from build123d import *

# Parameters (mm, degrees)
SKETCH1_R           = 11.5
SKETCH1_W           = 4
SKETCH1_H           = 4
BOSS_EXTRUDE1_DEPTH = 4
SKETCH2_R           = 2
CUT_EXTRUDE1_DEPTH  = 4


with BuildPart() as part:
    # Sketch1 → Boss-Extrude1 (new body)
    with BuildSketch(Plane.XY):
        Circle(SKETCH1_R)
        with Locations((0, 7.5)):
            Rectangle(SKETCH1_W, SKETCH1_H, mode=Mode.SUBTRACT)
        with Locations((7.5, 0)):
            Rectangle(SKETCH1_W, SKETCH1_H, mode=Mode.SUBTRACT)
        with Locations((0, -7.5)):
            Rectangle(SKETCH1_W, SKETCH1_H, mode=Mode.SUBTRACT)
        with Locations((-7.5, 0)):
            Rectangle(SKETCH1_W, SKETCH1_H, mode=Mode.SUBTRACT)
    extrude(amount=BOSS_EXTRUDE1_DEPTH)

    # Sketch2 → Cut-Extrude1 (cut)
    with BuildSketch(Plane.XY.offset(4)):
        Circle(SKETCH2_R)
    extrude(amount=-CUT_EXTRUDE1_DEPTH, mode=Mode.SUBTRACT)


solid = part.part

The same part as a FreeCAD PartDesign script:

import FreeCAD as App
import Part
import Sketcher
from FreeCAD import Vector
Q = App.Units.Quantity


def add_polygon(sketch, points):
    """Adds a closed chain of lines whose ends are joined by coincident constraints."""
    first, n = sketch.GeometryCount, len(points)
    for a, b in zip(points, points[1:] + points[:1]):
        sketch.addGeometry(Part.LineSegment(App.Vector(*a, 0), App.Vector(*b, 0)), False)
    for i in range(n):
        sketch.addConstraint(Sketcher.Constraint("Coincident", first + i, 2, first + (i + 1) % n, 1))

doc = App.newDocument("Part")
body = doc.addObject("PartDesign::Body", "Body")

# Sketch on XY plane
sketch1 = body.newObject("Sketcher::SketchObject", "Sketch")
sketch1.AttachmentSupport = (doc.getObject("XY_Plane"), [""])
sketch1.MapMode = "FlatFace"
sketch1.addGeometry(Part.Circle(Vector(0, 0, 0), Vector(0, 0, 1), 11.5), False)  # 0
add_polygon(sketch1, [(2, -9.5), (-2, -9.5), (-2, -5.5), (2, -5.5)])  # lines 1-4
add_polygon(sketch1, [(-5.5, -2), (-9.5, -2), (-9.5, 2), (-5.5, 2)])  # lines 5-8
add_polygon(sketch1, [(9.5, -2), (5.5, -2), (5.5, 2), (9.5, 2)])  # lines 9-12
add_polygon(sketch1, [(2, 5.5), (-2, 5.5), (-2, 9.5), (2, 9.5)])  # lines 13-16
sketch1.addConstraint(Sketcher.Constraint("Horizontal", 1))
sketch1.addConstraint(Sketcher.Constraint("Vertical", 2))
sketch1.addConstraint(Sketcher.Constraint("Horizontal", 3))
sketch1.addConstraint(Sketcher.Constraint("Vertical", 4))
sketch1.addConstraint(Sketcher.Constraint("Horizontal", 5))
sketch1.addConstraint(Sketcher.Constraint("Vertical", 6))
sketch1.addConstraint(Sketcher.Constraint("Horizontal", 7))
sketch1.addConstraint(Sketcher.Constraint("Vertical", 8))
sketch1.addConstraint(Sketcher.Constraint("Horizontal", 9))
sketch1.addConstraint(Sketcher.Constraint("Vertical", 10))
sketch1.addConstraint(Sketcher.Constraint("Horizontal", 11))
sketch1.addConstraint(Sketcher.Constraint("Vertical", 12))
sketch1.addConstraint(Sketcher.Constraint("Horizontal", 13))
sketch1.addConstraint(Sketcher.Constraint("Vertical", 14))
sketch1.addConstraint(Sketcher.Constraint("Horizontal", 15))
sketch1.addConstraint(Sketcher.Constraint("Vertical", 16))
sketch1.addConstraint(Sketcher.Constraint("Coincident", 0, 3, -1, 1))
sketch1.addConstraint(Sketcher.Constraint("Symmetric", 7, 2, 9, 2, -1, 1))
sketch1.addConstraint(Sketcher.Constraint("Symmetric", 5, 2, 11, 2, -1, 1))
sketch1.addConstraint(Sketcher.Constraint("Symmetric", 3, 2, 13, 2, -1, 1))
sketch1.addConstraint(Sketcher.Constraint("Symmetric", 1, 2, 15, 2, -1, 1))
sketch1.addConstraint(Sketcher.Constraint("Horizontal", 8, 2, 9, 2))
sketch1.addConstraint(Sketcher.Constraint("Vertical", 2, 2, 13, 2))
sketch1.addConstraint(Sketcher.Constraint("Equal", 3, 5))
sketch1.addConstraint(Sketcher.Constraint("Equal", 15, 2))
sketch1.addConstraint(Sketcher.Constraint("Equal", 4, 6))
sketch1.addConstraint(Sketcher.Constraint("Diameter", 0, Q("23 mm")))
sketch1.addConstraint(Sketcher.Constraint("DistanceX", 1, 2, 1, 1, Q("4 mm")))
sketch1.addConstraint(Sketcher.Constraint("DistanceX", 7, 2, 10, 2, Q("11 mm")))
sketch1.addConstraint(Sketcher.Constraint("DistanceY", 1, 2, -1, 1, Q("9.5 mm")))
pad1 = body.newObject("PartDesign::Pad", "Pad")
pad1.Profile = sketch1
pad1.Length = 4

# Sketch on XY plane
sketch2 = body.newObject("Sketcher::SketchObject", "Sketch001")
sketch2.AttachmentSupport = (doc.getObject("XY_Plane"), [""])
sketch2.MapMode = "FlatFace"
sketch2.AttachmentOffset = App.Placement(Vector(0, 0, 4), App.Rotation())
sketch2.addGeometry(Part.Circle(Vector(0, 0, 0), Vector(0, 0, 1), 2), False)
sketch2.addConstraint(Sketcher.Constraint("Coincident", 0, 3, -1, 1))
sketch2.addConstraint(Sketcher.Constraint("Diameter", 0, Q("4 mm")))
pocket1 = body.newObject("PartDesign::Pocket", "Pocket")
pocket1.Profile = sketch2
pocket1.Length = 4

doc.recompute()
